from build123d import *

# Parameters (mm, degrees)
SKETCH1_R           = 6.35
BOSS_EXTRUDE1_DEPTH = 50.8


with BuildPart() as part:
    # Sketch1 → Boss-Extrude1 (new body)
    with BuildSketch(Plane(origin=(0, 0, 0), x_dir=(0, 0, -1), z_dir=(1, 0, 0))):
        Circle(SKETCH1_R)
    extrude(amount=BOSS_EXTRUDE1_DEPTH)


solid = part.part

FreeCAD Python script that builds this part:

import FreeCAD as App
import Part
import Sketcher
from FreeCAD import Vector
Q = App.Units.Quantity

doc = App.newDocument("Part")
body = doc.addObject("PartDesign::Body", "Body")

# Sketch on YZ plane
sketch1 = doc.addObject("Sketcher::SketchObject", "Sketch")
body.addObject(sketch1)
sketch1.AttachmentSupport = (doc.YZ_Plane, [""])
sketch1.MapMode = "FlatFace"
sketch1.addGeometry(Part.Circle(Vector(0, 0, 0), Vector(0, 0, 1), 6), False)
sketch1.addConstraint([
    Sketcher.Constraint("Coincident", 0, 3, -1, 1),
    Sketcher.Constraint("Diameter", 0, Q("0.5 in")),
])
pad1 = doc.addObject("PartDesign::Pad", "Pad")
body.addObject(pad1)
pad1.Profile = sketch1
pad1.Length = Q("2 in")

doc.recompute()
